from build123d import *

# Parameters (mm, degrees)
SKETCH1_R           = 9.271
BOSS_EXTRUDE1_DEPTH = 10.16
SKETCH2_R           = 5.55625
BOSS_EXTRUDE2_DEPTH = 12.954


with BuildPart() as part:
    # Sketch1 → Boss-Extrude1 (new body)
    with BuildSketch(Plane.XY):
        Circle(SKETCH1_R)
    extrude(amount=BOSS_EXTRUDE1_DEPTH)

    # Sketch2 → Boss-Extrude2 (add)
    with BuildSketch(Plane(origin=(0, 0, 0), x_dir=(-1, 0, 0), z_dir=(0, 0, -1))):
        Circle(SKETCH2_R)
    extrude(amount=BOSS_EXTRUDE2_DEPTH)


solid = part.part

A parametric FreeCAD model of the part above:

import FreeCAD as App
import Part
import Sketcher
Q = App.Units.Quantity

doc = App.newDocument("Part")
body = doc.addObject("PartDesign::Body", "Body")

sketch1 = body.newObject("Sketcher::SketchObject", "Sketch")
sketch1.AttachmentSupport = (doc.getObject("XY_Plane"), [""])
sketch1.MapMode = "FlatFace"
sketch1.addGeometry(Part.Circle(App.Vector(0, 0, 0), App.Vector(0, 0, 1), 9), False)
sketch1.addConstraint(Sketcher.Constraint("Coincident", 0, 3, -1, 1))
sketch1.addConstraint(Sketcher.Constraint("Diameter", 0, Q("0.73 in")))
pad1 = body.newObject("PartDesign::Pad", "Pad")
pad1.Profile = sketch1
pad1.Length = Q("0.4 in")

sketch2 = body.newObject("Sketcher::SketchObject", "Sketch001")
sketch2.AttachmentSupport = (doc.getObject("XY_Plane"), [""])
sketch2.MapMode = "FlatFace"
sketch2.addGeometry(Part.Circle(App.Vector(0, 0, 0), App.Vector(0, 0, 1), 6), False)
sketch2.addConstraint(Sketcher.Constraint("Coincident", 0, 3, -1, 1))
sketch2.addConstraint(Sketcher.Constraint("Diameter", 0, Q("0.4375 in")))
pad2 = body.newObject("PartDesign::Pad", "Pad001")
pad2.Profile = sketch2
pad2.Length = Q("0.51 in")
pad2.Reversed = True

doc.recompute()
